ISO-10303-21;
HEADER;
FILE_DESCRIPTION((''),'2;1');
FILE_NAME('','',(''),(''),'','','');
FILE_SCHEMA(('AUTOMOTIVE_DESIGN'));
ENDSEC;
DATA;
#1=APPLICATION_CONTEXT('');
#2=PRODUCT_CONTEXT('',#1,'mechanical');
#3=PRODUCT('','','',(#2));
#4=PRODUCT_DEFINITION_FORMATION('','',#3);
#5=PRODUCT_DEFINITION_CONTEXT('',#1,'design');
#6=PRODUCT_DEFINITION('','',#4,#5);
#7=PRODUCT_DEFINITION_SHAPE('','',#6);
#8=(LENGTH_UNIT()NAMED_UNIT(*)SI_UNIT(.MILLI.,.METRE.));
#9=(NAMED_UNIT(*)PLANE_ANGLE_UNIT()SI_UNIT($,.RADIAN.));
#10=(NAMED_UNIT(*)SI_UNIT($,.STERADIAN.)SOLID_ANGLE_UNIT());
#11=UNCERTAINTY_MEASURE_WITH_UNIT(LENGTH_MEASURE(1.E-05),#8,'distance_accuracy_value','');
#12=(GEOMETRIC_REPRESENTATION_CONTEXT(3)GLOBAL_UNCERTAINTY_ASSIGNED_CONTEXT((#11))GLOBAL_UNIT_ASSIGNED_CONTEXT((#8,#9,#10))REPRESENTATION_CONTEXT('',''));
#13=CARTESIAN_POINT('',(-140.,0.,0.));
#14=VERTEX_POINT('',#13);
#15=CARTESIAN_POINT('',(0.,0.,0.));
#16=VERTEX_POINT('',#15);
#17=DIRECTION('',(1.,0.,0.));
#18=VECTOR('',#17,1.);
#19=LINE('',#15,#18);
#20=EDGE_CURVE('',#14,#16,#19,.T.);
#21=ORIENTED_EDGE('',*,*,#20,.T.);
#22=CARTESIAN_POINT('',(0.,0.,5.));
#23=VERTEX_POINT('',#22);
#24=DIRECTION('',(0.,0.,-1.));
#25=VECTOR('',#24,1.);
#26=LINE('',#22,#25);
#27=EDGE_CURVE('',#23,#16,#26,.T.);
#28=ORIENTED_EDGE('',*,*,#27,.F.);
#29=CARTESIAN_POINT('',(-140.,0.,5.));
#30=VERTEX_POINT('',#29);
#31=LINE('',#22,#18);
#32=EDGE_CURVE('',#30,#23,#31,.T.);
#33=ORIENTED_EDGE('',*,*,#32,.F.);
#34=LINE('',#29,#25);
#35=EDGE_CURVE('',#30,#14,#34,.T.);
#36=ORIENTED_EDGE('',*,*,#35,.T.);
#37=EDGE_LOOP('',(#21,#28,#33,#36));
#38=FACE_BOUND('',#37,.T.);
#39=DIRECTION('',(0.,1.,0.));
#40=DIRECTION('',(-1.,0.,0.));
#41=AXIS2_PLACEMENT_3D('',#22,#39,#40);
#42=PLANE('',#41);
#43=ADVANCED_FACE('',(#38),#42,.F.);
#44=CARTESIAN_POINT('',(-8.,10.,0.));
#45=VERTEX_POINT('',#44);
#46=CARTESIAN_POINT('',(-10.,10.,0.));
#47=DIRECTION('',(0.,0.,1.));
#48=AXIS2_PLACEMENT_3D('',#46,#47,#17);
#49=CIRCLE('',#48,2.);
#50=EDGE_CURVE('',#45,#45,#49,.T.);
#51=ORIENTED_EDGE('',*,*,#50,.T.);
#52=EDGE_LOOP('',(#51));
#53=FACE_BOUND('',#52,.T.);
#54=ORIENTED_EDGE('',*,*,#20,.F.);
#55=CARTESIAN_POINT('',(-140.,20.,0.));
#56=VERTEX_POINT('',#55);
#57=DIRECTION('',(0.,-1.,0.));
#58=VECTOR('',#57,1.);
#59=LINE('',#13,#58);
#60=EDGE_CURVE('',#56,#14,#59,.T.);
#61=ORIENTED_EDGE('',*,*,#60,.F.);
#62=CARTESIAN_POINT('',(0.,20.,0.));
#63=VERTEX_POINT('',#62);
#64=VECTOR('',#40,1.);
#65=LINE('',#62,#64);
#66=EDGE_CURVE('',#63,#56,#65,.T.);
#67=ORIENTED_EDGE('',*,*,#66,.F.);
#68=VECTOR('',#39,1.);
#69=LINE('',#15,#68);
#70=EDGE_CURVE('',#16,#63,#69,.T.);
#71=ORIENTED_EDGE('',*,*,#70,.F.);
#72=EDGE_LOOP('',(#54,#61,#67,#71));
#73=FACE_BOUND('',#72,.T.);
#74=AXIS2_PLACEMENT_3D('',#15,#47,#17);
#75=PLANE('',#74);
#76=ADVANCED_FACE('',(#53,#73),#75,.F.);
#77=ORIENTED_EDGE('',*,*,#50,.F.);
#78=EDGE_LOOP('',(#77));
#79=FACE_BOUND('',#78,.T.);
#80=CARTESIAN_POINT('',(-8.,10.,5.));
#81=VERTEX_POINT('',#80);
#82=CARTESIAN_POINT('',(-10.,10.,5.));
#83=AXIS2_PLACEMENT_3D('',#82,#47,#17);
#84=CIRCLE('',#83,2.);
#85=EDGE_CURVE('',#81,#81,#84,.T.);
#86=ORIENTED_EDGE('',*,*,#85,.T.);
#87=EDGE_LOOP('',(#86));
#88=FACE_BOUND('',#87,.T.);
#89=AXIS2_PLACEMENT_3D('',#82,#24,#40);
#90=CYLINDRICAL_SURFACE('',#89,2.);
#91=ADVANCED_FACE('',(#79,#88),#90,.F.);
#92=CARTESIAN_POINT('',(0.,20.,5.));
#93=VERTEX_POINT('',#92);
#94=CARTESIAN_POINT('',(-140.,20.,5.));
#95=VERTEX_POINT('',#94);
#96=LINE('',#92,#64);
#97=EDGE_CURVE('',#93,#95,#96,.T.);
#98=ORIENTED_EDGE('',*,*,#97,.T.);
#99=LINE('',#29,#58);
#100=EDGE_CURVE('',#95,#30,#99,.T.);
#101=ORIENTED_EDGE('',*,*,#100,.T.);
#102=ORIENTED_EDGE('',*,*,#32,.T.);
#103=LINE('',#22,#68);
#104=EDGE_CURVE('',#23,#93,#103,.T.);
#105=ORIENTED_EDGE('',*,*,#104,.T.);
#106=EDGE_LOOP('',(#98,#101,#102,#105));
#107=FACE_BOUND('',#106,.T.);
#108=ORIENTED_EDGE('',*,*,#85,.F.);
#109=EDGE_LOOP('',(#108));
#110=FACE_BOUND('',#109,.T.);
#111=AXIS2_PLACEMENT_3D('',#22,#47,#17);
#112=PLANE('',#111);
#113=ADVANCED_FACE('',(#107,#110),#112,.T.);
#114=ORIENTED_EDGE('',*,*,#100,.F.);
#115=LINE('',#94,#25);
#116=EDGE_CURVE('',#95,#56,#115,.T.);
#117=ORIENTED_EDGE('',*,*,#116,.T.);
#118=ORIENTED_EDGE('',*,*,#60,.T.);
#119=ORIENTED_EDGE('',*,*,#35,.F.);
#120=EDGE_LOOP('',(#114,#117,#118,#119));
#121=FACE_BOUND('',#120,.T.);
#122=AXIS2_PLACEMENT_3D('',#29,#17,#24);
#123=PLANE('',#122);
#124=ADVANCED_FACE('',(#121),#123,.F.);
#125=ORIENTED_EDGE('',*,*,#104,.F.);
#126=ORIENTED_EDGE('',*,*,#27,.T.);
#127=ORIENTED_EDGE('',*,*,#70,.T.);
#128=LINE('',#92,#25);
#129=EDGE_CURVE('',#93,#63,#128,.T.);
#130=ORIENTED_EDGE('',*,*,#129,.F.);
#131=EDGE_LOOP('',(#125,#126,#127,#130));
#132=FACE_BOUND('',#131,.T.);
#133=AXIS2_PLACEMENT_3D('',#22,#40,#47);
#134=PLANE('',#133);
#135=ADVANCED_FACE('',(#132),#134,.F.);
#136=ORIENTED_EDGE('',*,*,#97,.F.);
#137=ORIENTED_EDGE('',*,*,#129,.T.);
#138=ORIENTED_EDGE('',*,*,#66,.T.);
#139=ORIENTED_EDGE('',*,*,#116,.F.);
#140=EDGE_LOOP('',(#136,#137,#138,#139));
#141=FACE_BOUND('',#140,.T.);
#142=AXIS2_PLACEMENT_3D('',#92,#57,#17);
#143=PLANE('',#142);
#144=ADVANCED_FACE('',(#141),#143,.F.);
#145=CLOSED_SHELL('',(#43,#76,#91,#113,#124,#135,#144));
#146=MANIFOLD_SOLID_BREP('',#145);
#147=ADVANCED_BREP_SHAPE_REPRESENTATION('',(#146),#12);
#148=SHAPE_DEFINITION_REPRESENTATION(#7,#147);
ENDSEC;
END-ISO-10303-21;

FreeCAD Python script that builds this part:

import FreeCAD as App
import Part
import Sketcher

V = App.Vector


def add_polygon(sketch, points):
    """Adds a closed chain of lines whose ends are joined by coincident constraints."""
    first, n = sketch.GeometryCount, len(points)
    for a, b in zip(points, points[1:] + points[:1]):
        sketch.addGeometry(Part.LineSegment(App.Vector(*a, 0), App.Vector(*b, 0)), False)
    for i in range(n):
        sketch.addConstraint(Sketcher.Constraint("Coincident", first + i, 2, first + (i + 1) % n, 1))

doc = App.newDocument("Part")
body = doc.addObject("PartDesign::Body", "Body")

sketch1 = doc.addObject("Sketcher::SketchObject", "Sketch")
body.addObject(sketch1)
sketch1.AttachmentSupport = (doc.XY_Plane, [""])
sketch1.MapMode = "FlatFace"
add_polygon(sketch1, [(-140, 20), (-140, 0), (0, 0), (0, 20)])
sketch1.addGeometry(Part.Circle(V(-10, 10, 0), V(0, 0, 1), 2), False)
sketch1.addConstraint(Sketcher.Constraint("Vertical", 0))
sketch1.addConstraint(Sketcher.Constraint("Horizontal", 1))
sketch1.addConstraint(Sketcher.Constraint("Vertical", 2))
sketch1.addConstraint(Sketcher.Constraint("Horizontal", 3))
sketch1.addConstraint(Sketcher.Constraint("Coincident", 1, 2, -1, 1))
sketch1.addConstraint(Sketcher.Constraint("Diameter", 4, 4.0))
sketch1.addConstraint(Sketcher.Constraint("DistanceX", 1, 1, 1, 2, 140.0))
sketch1.addConstraint(Sketcher.Constraint("DistanceY", 0, 2, 0, 1, 20.0))
sketch1.addConstraint(Sketcher.Constraint("DistanceX", 4, 3, -1, 1, 10.0))
sketch1.addConstraint(Sketcher.Constraint("DistanceY", -1, 1, 4, 3, 10.0))
pad1 = doc.addObject("PartDesign::Pad", "Pad")
body.addObject(pad1)
pad1.Profile = sketch1
pad1.Length = 5

doc.recompute()
